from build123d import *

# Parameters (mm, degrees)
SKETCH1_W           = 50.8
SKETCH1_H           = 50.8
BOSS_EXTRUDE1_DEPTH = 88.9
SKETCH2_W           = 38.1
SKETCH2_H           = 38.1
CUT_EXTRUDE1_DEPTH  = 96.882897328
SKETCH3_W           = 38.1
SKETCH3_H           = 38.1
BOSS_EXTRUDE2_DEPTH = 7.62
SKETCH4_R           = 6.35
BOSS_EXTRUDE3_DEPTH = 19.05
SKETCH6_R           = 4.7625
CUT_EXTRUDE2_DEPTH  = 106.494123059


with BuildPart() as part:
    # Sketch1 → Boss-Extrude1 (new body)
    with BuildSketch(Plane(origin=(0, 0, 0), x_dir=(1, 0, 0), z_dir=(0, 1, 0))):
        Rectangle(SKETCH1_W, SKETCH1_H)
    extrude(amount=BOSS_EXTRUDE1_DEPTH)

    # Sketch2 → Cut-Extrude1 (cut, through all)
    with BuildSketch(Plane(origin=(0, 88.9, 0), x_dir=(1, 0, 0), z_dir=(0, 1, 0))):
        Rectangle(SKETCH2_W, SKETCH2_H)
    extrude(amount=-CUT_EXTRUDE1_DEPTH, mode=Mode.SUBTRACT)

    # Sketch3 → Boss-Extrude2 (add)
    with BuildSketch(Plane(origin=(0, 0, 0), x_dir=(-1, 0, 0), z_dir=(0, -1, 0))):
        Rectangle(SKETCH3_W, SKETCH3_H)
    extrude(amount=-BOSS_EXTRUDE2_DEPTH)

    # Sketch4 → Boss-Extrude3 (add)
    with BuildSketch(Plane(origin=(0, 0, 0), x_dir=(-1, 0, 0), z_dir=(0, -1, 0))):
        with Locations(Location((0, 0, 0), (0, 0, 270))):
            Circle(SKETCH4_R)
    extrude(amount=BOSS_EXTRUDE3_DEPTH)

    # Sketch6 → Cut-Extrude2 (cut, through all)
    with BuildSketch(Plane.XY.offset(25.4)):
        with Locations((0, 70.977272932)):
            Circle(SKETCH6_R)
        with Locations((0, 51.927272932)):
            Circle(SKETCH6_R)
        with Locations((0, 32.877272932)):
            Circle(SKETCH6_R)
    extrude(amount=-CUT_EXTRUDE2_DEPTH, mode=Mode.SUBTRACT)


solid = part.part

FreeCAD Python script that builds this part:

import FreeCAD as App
import Part
import Sketcher

V = App.Vector
Q = App.Units.Quantity

doc = App.newDocument("Part")
body = doc.addObject("PartDesign::Body", "Body")

# Sketch on XZ plane
sketch1 = doc.addObject("Sketcher::SketchObject", "Sketch")
body.addObject(sketch1)
sketch1.AttachmentSupport = (doc.XZ_Plane, [""])
sketch1.MapMode = "FlatFace"
sketch1.addGeometry(Part.LineSegment(V(-25, -25, 0), V(-25, 25, 0)), False)
sketch1.addGeometry(Part.LineSegment(V(-25, 25, 0), V(25, 25, 0)), False)
sketch1.addGeometry(Part.LineSegment(V(25, 25, 0), V(25, -25, 0)), False)
sketch1.addGeometry(Part.LineSegment(V(25, -25, 0), V(-25, -25, 0)), False)
sketch1.addConstraint(Sketcher.Constraint("Coincident", 0, 2, 1, 1))
sketch1.addConstraint(Sketcher.Constraint("Coincident", 1, 2, 2, 1))
sketch1.addConstraint(Sketcher.Constraint("Coincident", 2, 2, 3, 1))
sketch1.addConstraint(Sketcher.Constraint("Coincident", 3, 2, 0, 1))
sketch1.addConstraint(Sketcher.Constraint("Vertical", 0))
sketch1.addConstraint(Sketcher.Constraint("Horizontal", 1))
sketch1.addConstraint(Sketcher.Constraint("Vertical", 2))
sketch1.addConstraint(Sketcher.Constraint("Horizontal", 3))
sketch1.addConstraint(Sketcher.Constraint("Symmetric", 0, 2, 2, 2, -1, 1))
sketch1.addConstraint(Sketcher.Constraint("Equal", 3, 0))
sketch1.addConstraint(Sketcher.Constraint("DistanceX", 1, 1, 1, 2, Q("2 in")))
pad1 = doc.addObject("PartDesign::Pad", "Pad")
body.addObject(pad1)
pad1.Profile = sketch1
pad1.Length = Q("3.5 in")
pad1.Reversed = True

# Sketch on XZ plane
sketch2 = doc.addObject("Sketcher::SketchObject", "Sketch001")
body.addObject(sketch2)
sketch2.AttachmentSupport = (doc.XZ_Plane, [""])
sketch2.MapMode = "FlatFace"
sketch2.AttachmentOffset = App.Placement(V(0, 0, -3.5 * 25.4), App.Rotation())
sketch2.addGeometry(Part.LineSegment(V(-19, -19, 0), V(-19, 19, 0)), False)
sketch2.addGeometry(Part.LineSegment(V(-19, 19, 0), V(19, 19, 0)), False)
sketch2.addGeometry(Part.LineSegment(V(19, 19, 0), V(19, -19, 0)), False)
sketch2.addGeometry(Part.LineSegment(V(19, -19, 0), V(-19, -19, 0)), False)
sketch2.addConstraint(Sketcher.Constraint("Coincident", 0, 2, 1, 1))
sketch2.addConstraint(Sketcher.Constraint("Coincident", 1, 2, 2, 1))
sketch2.addConstraint(Sketcher.Constraint("Coincident", 2, 2, 3, 1))
sketch2.addConstraint(Sketcher.Constraint("Coincident", 3, 2, 0, 1))
sketch2.addConstraint(Sketcher.Constraint("Vertical", 0))
sketch2.addConstraint(Sketcher.Constraint("Horizontal", 1))
sketch2.addConstraint(Sketcher.Constraint("Vertical", 2))
sketch2.addConstraint(Sketcher.Constraint("Horizontal", 3))
sketch2.addConstraint(Sketcher.Constraint("Symmetric", 0, 2, 2, 2, -1, 1))
sketch2.addConstraint(Sketcher.Constraint("Equal", 3, 0))
sketch2.addConstraint(Sketcher.Constraint("DistanceX", 1, 1, 1, 2, Q("1.5 in")))
pocket1 = doc.addObject("PartDesign::Pocket", "Pocket")
body.addObject(pocket1)
pocket1.Profile = sketch2
pocket1.Type = "ThroughAll"
pocket1.Reversed = True

# Sketch on XZ plane
sketch3 = doc.addObject("Sketcher::SketchObject", "Sketch002")
body.addObject(sketch3)
sketch3.AttachmentSupport = (doc.XZ_Plane, [""])
sketch3.MapMode = "FlatFace"
sketch3.addGeometry(Part.LineSegment(V(19, -19, 0), V(19, 19, 0)), False)
sketch3.addGeometry(Part.LineSegment(V(19, 19, 0), V(-19, 19, 0)), False)
sketch3.addGeometry(Part.LineSegment(V(-19, 19, 0), V(-19, -19, 0)), False)
sketch3.addGeometry(Part.LineSegment(V(-19, -19, 0), V(19, -19, 0)), False)
sketch3.addConstraint(Sketcher.Constraint("Coincident", 0, 2, 1, 1))
sketch3.addConstraint(Sketcher.Constraint("Coincident", 1, 2, 2, 1))
sketch3.addConstraint(Sketcher.Constraint("Coincident", 2, 2, 3, 1))
sketch3.addConstraint(Sketcher.Constraint("Coincident", 3, 2, 0, 1))
sketch3.addConstraint(Sketcher.Constraint("Vertical", 0))
sketch3.addConstraint(Sketcher.Constraint("Horizontal", 1))
sketch3.addConstraint(Sketcher.Constraint("Vertical", 2))
sketch3.addConstraint(Sketcher.Constraint("Horizontal", 3))
sketch3.addConstraint(Sketcher.Constraint("Symmetric", 0, 2, 2, 2, -1, 1))
sketch3.addConstraint(Sketcher.Constraint("Equal", 3, 0))
sketch3.addConstraint(Sketcher.Constraint("DistanceX", 1, 2, 1, 1, Q("1.5 in")))
pad2 = doc.addObject("PartDesign::Pad", "Pad001")
body.addObject(pad2)
pad2.Profile = sketch3
pad2.Length = Q("0.3 in")
pad2.Reversed = True

# Sketch on XZ plane
sketch4 = doc.addObject("Sketcher::SketchObject", "Sketch003")
body.addObject(sketch4)
sketch4.AttachmentSupport = (doc.XZ_Plane, [""])
sketch4.MapMode = "FlatFace"
sketch4.addGeometry(Part.Circle(V(0, 0, 0), V(0, 0, 1), 6), False)
sketch4.addConstraint(Sketcher.Constraint("Coincident", 0, 3, -1, 1))
sketch4.addConstraint(Sketcher.Constraint("Diameter", 0, Q("0.5 in")))
pad3 = doc.addObject("PartDesign::Pad", "Pad002")
body.addObject(pad3)
pad3.Profile = sketch4
pad3.Length = Q("0.75 in")

# Sketch on XY plane
sketch5 = doc.addObject("Sketcher::SketchObject", "Sketch004")
body.addObject(sketch5)
sketch5.AttachmentSupport = (doc.XY_Plane, [""])
sketch5.MapMode = "FlatFace"
sketch5.AttachmentOffset = App.Placement(V(0, 0, 1 * 25.4), App.Rotation())
sketch5.addGeometry(Part.Circle(V(0, 71, 0), V(0, 0, 1), 4.8), False)
sketch5.addGeometry(Part.Circle(V(0, 51.9, 0), V(0, 0, 1), 4.8), False)
sketch5.addGeometry(Part.Circle(V(0, 32.9, 0), V(0, 0, 1), 4.8), False)
sketch5.addConstraint(Sketcher.Constraint("Equal", 0, 1))
sketch5.addConstraint(Sketcher.Constraint("Equal", 1, 2))
sketch5.addConstraint(Sketcher.Constraint("PointOnObject", 0, 3, -2))
sketch5.addConstraint(Sketcher.Constraint("PointOnObject", 1, 3, -2))
sketch5.addConstraint(Sketcher.Constraint("PointOnObject", 2, 3, -2))
sketch5.addConstraint(Sketcher.Constraint("Diameter", 0, Q("0.375 in")))
sketch5.addConstraint(Sketcher.Constraint("DistanceY", 2, 3, 0, 3, Q("1.5 in")))
sketch5.addConstraint(Sketcher.Constraint("DistanceY", 1, 3, 0, 3, Q("0.75 in")))
sketch5.addConstraint(Sketcher.Constraint("DistanceY", -1, 1, 0, 3, Q("70.977273 mm")))
pocket2 = doc.addObject("PartDesign::Pocket", "Pocket001")
body.addObject(pocket2)
pocket2.Profile = sketch5
pocket2.Type = "ThroughAll"

doc.recompute()
